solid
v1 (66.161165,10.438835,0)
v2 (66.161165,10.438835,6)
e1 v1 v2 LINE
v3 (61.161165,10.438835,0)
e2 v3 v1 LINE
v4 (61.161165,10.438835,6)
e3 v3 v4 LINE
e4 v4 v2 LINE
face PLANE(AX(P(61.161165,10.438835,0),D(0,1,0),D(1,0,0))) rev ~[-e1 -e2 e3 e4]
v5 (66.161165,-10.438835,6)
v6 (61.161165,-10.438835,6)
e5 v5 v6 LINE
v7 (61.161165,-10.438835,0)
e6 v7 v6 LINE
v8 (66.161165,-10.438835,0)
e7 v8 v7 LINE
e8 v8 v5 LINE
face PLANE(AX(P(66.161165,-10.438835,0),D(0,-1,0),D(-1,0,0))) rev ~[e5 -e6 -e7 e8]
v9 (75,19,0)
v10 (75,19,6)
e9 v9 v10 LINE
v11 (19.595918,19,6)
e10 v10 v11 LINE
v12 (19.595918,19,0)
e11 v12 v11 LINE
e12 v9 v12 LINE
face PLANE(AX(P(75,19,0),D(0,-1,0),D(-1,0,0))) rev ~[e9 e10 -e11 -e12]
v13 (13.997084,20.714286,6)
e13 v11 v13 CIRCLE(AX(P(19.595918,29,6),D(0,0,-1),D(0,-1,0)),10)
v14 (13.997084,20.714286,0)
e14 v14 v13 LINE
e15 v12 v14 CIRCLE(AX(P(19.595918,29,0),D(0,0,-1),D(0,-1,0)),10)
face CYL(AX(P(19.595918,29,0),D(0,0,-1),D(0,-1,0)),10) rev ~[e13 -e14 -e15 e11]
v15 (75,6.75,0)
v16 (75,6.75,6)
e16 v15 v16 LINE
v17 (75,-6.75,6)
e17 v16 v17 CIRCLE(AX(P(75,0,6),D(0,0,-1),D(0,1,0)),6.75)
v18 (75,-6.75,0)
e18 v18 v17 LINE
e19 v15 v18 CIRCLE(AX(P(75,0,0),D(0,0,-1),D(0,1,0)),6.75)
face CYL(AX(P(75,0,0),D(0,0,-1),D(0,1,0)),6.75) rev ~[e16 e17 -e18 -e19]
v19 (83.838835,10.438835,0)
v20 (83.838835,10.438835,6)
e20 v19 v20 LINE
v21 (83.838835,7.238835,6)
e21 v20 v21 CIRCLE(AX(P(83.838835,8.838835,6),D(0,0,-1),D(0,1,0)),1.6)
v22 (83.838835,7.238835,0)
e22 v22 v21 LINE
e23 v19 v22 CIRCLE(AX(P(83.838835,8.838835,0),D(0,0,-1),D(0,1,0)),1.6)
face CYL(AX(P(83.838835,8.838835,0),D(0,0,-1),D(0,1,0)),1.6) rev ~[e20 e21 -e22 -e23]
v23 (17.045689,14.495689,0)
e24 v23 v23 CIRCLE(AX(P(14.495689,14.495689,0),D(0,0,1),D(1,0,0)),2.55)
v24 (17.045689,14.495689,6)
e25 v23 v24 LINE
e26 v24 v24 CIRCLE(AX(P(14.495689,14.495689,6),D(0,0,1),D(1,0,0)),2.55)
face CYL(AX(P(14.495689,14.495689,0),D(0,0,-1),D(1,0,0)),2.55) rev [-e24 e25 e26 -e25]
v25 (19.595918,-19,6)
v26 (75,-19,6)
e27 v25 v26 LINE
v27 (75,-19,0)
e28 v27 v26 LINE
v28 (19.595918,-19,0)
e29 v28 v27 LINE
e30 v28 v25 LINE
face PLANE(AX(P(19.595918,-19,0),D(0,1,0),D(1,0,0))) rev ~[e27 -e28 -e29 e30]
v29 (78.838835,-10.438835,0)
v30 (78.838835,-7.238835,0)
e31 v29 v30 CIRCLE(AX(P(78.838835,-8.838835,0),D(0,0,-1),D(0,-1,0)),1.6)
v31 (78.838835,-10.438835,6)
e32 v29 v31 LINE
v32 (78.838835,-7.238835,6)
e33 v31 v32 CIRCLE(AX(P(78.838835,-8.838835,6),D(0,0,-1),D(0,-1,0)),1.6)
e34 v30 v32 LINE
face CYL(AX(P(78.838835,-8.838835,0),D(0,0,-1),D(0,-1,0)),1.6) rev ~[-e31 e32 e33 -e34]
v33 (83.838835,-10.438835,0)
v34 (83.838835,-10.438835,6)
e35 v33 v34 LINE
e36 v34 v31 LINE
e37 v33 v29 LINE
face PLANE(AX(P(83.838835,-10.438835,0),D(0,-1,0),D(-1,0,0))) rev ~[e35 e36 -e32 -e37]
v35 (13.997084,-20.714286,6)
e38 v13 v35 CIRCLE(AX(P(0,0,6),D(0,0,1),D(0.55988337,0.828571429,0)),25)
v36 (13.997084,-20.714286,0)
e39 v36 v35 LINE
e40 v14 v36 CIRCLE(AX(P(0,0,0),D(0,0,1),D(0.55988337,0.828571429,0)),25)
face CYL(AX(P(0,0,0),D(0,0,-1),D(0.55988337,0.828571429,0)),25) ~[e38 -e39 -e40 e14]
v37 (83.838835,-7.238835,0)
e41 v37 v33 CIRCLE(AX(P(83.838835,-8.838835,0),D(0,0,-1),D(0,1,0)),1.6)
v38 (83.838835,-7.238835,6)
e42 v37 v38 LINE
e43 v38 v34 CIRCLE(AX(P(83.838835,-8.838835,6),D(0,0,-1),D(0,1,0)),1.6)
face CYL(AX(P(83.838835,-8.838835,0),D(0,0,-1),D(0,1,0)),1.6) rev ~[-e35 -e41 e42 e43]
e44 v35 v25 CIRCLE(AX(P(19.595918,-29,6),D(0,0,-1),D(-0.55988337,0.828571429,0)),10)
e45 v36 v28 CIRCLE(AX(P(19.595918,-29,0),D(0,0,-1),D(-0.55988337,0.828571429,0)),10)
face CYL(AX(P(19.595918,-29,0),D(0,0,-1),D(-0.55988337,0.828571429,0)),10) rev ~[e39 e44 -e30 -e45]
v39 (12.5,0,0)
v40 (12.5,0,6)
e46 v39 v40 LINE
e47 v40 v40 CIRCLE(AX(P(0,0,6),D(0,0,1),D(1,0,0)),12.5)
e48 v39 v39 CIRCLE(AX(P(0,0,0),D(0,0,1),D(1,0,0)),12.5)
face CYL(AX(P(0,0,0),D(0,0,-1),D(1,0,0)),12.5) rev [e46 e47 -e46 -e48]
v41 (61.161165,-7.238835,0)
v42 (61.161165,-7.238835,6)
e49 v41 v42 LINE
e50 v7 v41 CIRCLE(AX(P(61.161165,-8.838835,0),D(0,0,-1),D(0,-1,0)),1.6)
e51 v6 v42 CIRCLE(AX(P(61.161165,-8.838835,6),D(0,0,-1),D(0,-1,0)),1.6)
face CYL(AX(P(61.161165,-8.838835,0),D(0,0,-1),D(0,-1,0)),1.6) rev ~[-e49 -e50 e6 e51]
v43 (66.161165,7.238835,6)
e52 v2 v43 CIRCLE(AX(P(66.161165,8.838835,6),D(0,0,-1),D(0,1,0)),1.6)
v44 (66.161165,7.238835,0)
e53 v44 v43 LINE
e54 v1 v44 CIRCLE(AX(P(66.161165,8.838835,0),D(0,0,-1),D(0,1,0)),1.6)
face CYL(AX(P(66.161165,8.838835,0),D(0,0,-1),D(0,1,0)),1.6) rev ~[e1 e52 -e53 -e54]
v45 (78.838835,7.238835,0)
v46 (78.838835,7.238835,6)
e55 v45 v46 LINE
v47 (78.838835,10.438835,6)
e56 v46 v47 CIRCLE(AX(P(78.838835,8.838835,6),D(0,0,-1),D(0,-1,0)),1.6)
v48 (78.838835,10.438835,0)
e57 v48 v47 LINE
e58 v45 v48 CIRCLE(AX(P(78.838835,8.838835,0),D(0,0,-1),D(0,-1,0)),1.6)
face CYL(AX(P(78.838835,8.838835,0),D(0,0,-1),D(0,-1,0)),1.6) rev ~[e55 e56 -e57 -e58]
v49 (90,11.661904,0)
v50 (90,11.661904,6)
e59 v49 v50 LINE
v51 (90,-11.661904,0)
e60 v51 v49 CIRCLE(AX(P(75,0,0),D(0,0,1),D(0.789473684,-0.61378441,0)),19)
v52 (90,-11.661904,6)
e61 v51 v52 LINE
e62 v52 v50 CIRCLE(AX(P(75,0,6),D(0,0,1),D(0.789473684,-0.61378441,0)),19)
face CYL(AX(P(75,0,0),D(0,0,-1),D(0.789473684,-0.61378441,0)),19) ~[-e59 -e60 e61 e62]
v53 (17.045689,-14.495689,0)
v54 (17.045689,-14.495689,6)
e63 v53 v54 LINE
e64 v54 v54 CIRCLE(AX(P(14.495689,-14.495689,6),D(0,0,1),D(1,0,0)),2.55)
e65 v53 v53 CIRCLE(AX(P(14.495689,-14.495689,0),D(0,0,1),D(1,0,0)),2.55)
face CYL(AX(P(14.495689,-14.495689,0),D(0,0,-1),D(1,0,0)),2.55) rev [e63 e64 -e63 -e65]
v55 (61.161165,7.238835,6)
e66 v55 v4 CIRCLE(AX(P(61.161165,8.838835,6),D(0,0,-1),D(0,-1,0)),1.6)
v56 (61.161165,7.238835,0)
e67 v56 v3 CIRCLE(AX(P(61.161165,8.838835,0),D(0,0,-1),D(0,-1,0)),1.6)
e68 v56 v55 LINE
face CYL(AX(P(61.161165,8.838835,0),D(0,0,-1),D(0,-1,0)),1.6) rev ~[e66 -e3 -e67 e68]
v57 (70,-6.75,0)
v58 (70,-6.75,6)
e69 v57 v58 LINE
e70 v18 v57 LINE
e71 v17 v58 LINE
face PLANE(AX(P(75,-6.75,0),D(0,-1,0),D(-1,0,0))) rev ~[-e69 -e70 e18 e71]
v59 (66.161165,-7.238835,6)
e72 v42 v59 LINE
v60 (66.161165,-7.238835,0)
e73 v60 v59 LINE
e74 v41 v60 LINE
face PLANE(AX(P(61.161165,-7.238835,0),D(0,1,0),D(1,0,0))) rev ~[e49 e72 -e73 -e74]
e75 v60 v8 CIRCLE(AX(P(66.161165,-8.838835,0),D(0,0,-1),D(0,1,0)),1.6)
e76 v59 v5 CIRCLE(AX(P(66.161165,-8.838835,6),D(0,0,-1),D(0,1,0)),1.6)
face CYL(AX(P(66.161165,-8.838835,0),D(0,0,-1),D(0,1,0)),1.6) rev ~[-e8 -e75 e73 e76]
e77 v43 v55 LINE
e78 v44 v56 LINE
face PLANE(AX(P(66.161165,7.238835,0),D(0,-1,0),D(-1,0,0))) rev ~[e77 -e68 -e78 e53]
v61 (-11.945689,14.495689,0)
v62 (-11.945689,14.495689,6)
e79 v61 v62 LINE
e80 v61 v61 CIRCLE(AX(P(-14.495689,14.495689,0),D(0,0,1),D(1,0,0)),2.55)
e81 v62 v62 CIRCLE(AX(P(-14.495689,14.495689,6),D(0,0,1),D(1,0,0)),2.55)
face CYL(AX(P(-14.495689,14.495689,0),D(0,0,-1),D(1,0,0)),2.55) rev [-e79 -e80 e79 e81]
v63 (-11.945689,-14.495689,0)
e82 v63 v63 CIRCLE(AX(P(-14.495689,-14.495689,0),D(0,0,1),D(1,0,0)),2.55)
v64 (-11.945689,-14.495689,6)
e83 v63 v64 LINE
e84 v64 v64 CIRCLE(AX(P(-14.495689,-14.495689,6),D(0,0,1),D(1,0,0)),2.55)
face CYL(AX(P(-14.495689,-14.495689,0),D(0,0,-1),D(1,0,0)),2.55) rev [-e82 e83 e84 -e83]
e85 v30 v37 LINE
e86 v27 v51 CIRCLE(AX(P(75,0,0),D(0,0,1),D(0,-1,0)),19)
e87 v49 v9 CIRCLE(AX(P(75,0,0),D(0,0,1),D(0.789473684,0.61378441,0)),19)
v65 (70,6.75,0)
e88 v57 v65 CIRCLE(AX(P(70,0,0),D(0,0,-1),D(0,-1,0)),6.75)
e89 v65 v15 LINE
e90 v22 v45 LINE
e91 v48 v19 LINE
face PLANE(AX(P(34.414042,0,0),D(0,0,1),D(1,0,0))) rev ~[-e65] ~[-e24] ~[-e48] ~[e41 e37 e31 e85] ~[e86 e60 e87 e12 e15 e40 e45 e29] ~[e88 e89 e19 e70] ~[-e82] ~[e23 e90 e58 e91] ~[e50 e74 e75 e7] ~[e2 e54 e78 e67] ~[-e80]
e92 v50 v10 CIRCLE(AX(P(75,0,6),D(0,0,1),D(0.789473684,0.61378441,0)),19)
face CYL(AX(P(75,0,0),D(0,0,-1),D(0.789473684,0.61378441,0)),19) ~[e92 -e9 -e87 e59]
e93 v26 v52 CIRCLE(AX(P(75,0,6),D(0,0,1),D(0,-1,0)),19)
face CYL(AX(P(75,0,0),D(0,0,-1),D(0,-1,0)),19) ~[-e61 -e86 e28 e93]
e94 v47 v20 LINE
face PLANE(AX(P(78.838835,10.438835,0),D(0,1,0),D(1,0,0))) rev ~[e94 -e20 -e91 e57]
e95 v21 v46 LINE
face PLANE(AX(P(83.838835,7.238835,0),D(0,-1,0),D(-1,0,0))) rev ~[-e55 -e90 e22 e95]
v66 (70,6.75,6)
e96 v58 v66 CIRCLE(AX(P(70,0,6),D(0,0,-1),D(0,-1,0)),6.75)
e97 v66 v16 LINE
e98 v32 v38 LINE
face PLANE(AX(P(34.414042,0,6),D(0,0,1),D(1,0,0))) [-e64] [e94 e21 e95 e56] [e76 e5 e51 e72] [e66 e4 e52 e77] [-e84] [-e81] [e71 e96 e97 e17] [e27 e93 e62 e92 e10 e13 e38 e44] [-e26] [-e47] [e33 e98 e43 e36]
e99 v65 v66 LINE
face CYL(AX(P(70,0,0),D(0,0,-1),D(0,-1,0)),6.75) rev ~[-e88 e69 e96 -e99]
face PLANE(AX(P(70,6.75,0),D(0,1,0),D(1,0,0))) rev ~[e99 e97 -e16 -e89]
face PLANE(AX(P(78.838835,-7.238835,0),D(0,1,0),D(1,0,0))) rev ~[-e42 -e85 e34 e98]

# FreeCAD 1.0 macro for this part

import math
import FreeCAD as App
import Part
import Sketcher

V = App.Vector

doc = App.newDocument("Part")
body = doc.addObject("PartDesign::Body", "Body")

sketch1 = body.newObject("Sketcher::SketchObject", "Sketch")
sketch1.AttachmentSupport = (doc.getObject("XY_Plane"), [""])
sketch1.MapMode = "FlatFace"
sketch1.addGeometry(Part.ArcOfCircle(Part.Circle(V(19.595918, 29, 0), V(0, 0, 1), 10), math.radians(-124.047732), math.radians(-90)), False)
sketch1.addGeometry(Part.ArcOfCircle(Part.Circle(V(0, 0, 0), V(0, 0, 1), 25), math.radians(55.952268), math.radians(304.047732)), False)
sketch1.addGeometry(Part.ArcOfCircle(Part.Circle(V(19.595918, -29, 0), V(0, 0, 1), 10), math.radians(90), math.radians(124.047732)), False)
sketch1.addGeometry(Part.LineSegment(V(19.595918, -19, 0), V(75, -19, 0)), False)
sketch1.addGeometry(Part.ArcOfCircle(Part.Circle(V(75, 0, 0), V(0, 0, 1), 19), math.radians(-90), math.radians(-37.863646)), False)
sketch1.addGeometry(Part.ArcOfCircle(Part.Circle(V(75, 0, 0), V(0, 0, 1), 19), math.radians(-37.863646), math.radians(37.863646)), False)
sketch1.addGeometry(Part.ArcOfCircle(Part.Circle(V(75, 0, 0), V(0, 0, 1), 19), math.radians(37.863646), math.radians(90)), False)
sketch1.addGeometry(Part.LineSegment(V(75, 19, 0), V(19.595918, 19, 0)), False)
sketch1.addGeometry(Part.Circle(V(-14.495689, -14.495689, 0), V(0, 0, 1), 2.55), False)
sketch1.addGeometry(Part.Circle(V(14.495689, -14.495689, 0), V(0, 0, 1), 2.55), False)
sketch1.addGeometry(Part.LineSegment(V(66.161165, -10.438835, 0), V(61.161165, -10.438835, 0)), False)
sketch1.addGeometry(Part.ArcOfCircle(Part.Circle(V(61.161165, -8.838835, 0), V(0, 0, 1), 1.6), math.radians(90), math.radians(270)), False)
sketch1.addGeometry(Part.LineSegment(V(61.161165, -7.238835, 0), V(66.161165, -7.238835, 0)), False)
sketch1.addGeometry(Part.ArcOfCircle(Part.Circle(V(66.161165, -8.838835, 0), V(0, 0, 1), 1.6), math.radians(-90), math.radians(90)), False)
sketch1.addGeometry(Part.LineSegment(V(83.838835, -10.438835, 0), V(78.838835, -10.438835, 0)), False)
sketch1.addGeometry(Part.ArcOfCircle(Part.Circle(V(78.838835, -8.838835, 0), V(0, 0, 1), 1.6), math.radians(90), math.radians(270)), False)
sketch1.addGeometry(Part.LineSegment(V(78.838835, -7.238835, 0), V(83.838835, -7.238835, 0)), False)
sketch1.addGeometry(Part.ArcOfCircle(Part.Circle(V(83.838835, -8.838835, 0), V(0, 0, 1), 1.6), math.radians(-90), math.radians(90)), False)
sketch1.addGeometry(Part.Circle(V(0, 0, 0), V(0, 0, 1), 12.5), False)
sketch1.addGeometry(Part.Circle(V(-14.495689, 14.495689, 0), V(0, 0, 1), 2.55), False)
sketch1.addGeometry(Part.Circle(V(14.495689, 14.495689, 0), V(0, 0, 1), 2.55), False)
sketch1.addGeometry(Part.LineSegment(V(75, -6.75, 0), V(70, -6.75, 0)), False)
sketch1.addGeometry(Part.ArcOfCircle(Part.Circle(V(70, 0, 0), V(0, 0, 1), 6.75), math.radians(90), math.radians(270)), False)
sketch1.addGeometry(Part.LineSegment(V(70, 6.75, 0), V(75, 6.75, 0)), False)
sketch1.addGeometry(Part.ArcOfCircle(Part.Circle(V(75, 0, 0), V(0, 0, 1), 6.75), math.radians(-90), math.radians(90)), False)
sketch1.addGeometry(Part.LineSegment(V(66.161165, 7.238835, 0), V(61.161165, 7.238835, 0)), False)
sketch1.addGeometry(Part.ArcOfCircle(Part.Circle(V(61.161165, 8.838835, 0), V(0, 0, 1), 1.6), math.radians(90), math.radians(270)), False)
sketch1.addGeometry(Part.LineSegment(V(61.161165, 10.438835, 0), V(66.161165, 10.438835, 0)), False)
sketch1.addGeometry(Part.ArcOfCircle(Part.Circle(V(66.161165, 8.838835, 0), V(0, 0, 1), 1.6), math.radians(-90), math.radians(90)), False)
sketch1.addGeometry(Part.LineSegment(V(83.838835, 7.238835, 0), V(78.838835, 7.238835, 0)), False)
sketch1.addGeometry(Part.ArcOfCircle(Part.Circle(V(78.838835, 8.838835, 0), V(0, 0, 1), 1.6), math.radians(90), math.radians(270)), False)
sketch1.addGeometry(Part.LineSegment(V(78.838835, 10.438835, 0), V(83.838835, 10.438835, 0)), False)
sketch1.addGeometry(Part.ArcOfCircle(Part.Circle(V(83.838835, 8.838835, 0), V(0, 0, 1), 1.6), math.radians(-90), math.radians(90)), False)
sketch1.addConstraint(Sketcher.Constraint("Tangent", 0, 1, 1, 1))
sketch1.addConstraint(Sketcher.Constraint("Tangent", 1, 2, 2, 2))
sketch1.addConstraint(Sketcher.Constraint("Tangent", 2, 1, 3, 1))
sketch1.addConstraint(Sketcher.Constraint("Tangent", 3, 2, 4, 1))
sketch1.addConstraint(Sketcher.Constraint("Tangent", 4, 2, 5, 1))
sketch1.addConstraint(Sketcher.Constraint("Tangent", 5, 2, 6, 1))
sketch1.addConstraint(Sketcher.Constraint("Tangent", 6, 2, 7, 1))
sketch1.addConstraint(Sketcher.Constraint("Tangent", 7, 2, 0, 2))
sketch1.addConstraint(Sketcher.Constraint("Tangent", 10, 2, 11, 2))
sketch1.addConstraint(Sketcher.Constraint("Tangent", 11, 1, 12, 1))
sketch1.addConstraint(Sketcher.Constraint("Tangent", 12, 2, 13, 2))
sketch1.addConstraint(Sketcher.Constraint("Tangent", 13, 1, 10, 1))
sketch1.addConstraint(Sketcher.Constraint("Tangent", 14, 2, 15, 2))
sketch1.addConstraint(Sketcher.Constraint("Tangent", 15, 1, 16, 1))
sketch1.addConstraint(Sketcher.Constraint("Tangent", 16, 2, 17, 2))
sketch1.addConstraint(Sketcher.Constraint("Tangent", 17, 1, 14, 1))
sketch1.addConstraint(Sketcher.Constraint("Tangent", 21, 2, 22, 2))
sketch1.addConstraint(Sketcher.Constraint("Tangent", 22, 1, 23, 1))
sketch1.addConstraint(Sketcher.Constraint("Tangent", 23, 2, 24, 2))
sketch1.addConstraint(Sketcher.Constraint("Tangent", 24, 1, 21, 1))
sketch1.addConstraint(Sketcher.Constraint("Tangent", 25, 2, 26, 2))
sketch1.addConstraint(Sketcher.Constraint("Tangent", 26, 1, 27, 1))
sketch1.addConstraint(Sketcher.Constraint("Tangent", 27, 2, 28, 2))
sketch1.addConstraint(Sketcher.Constraint("Tangent", 28, 1, 25, 1))
sketch1.addConstraint(Sketcher.Constraint("Tangent", 29, 2, 30, 2))
sketch1.addConstraint(Sketcher.Constraint("Tangent", 30, 1, 31, 1))
sketch1.addConstraint(Sketcher.Constraint("Tangent", 31, 2, 32, 2))
sketch1.addConstraint(Sketcher.Constraint("Tangent", 32, 1, 29, 1))
sketch1.addConstraint(Sketcher.Constraint("Horizontal", 3))
sketch1.addConstraint(Sketcher.Constraint("Horizontal", 7))
sketch1.addConstraint(Sketcher.Constraint("Horizontal", 10))
sketch1.addConstraint(Sketcher.Constraint("Horizontal", 12))
sketch1.addConstraint(Sketcher.Constraint("Horizontal", 14))
sketch1.addConstraint(Sketcher.Constraint("Horizontal", 16))
sketch1.addConstraint(Sketcher.Constraint("Horizontal", 21))
sketch1.addConstraint(Sketcher.Constraint("Horizontal", 23))
sketch1.addConstraint(Sketcher.Constraint("Horizontal", 25))
sketch1.addConstraint(Sketcher.Constraint("Horizontal", 27))
sketch1.addConstraint(Sketcher.Constraint("Horizontal", 29))
sketch1.addConstraint(Sketcher.Constraint("Horizontal", 31))
sketch1.addConstraint(Sketcher.Constraint("Coincident", 1, 3, -1, 1))
sketch1.addConstraint(Sketcher.Constraint("Coincident", 18, 3, -1, 1))
sketch1.addConstraint(Sketcher.Constraint("Coincident", 6, 3, 4, 3))
sketch1.addConstraint(Sketcher.Constraint("Coincident", 24, 3, 4, 3))
sketch1.addConstraint(Sketcher.Constraint("Equal", 0, 2))
sketch1.addConstraint(Sketcher.Constraint("Equal", 8, 9))
sketch1.addConstraint(Sketcher.Constraint("Equal", 13, 15))
sketch1.addConstraint(Sketcher.Constraint("Equal", 9, 19))
sketch1.addConstraint(Sketcher.Constraint("Equal", 19, 20))
sketch1.addConstraint(Sketcher.Constraint("Equal", 17, 26))
sketch1.addConstraint(Sketcher.Constraint("Equal", 28, 30))
sketch1.addConstraint(Sketcher.Constraint("Symmetric", 9, 3, 19, 3, -1, 1))
sketch1.addConstraint(Sketcher.Constraint("Symmetric", 8, 3, 20, 3, -1, 1))
sketch1.addConstraint(Sketcher.Constraint("Symmetric", 8, 3, 9, 3, -2))
sketch1.addConstraint(Sketcher.Constraint("Symmetric", 11, 3, 26, 3, -1))
sketch1.addConstraint(Sketcher.Constraint("Symmetric", 15, 3, 30, 3, -1))
sketch1.addConstraint(Sketcher.Constraint("Symmetric", 4, 2, 5, 2, -1))
sketch1.addConstraint(Sketcher.Constraint("Horizontal", 13, 3, 15, 3))
sketch1.addConstraint(Sketcher.Constraint("Vertical", 13, 3, 28, 3))
sketch1.addConstraint(Sketcher.Constraint("Vertical", 17, 3, 32, 3))
sketch1.addConstraint(Sketcher.Constraint("Equal", 12, 14))
sketch1.addConstraint(Sketcher.Constraint("Equal", 16, 21))
sketch1.addConstraint(Sketcher.Constraint("Diameter", 18, 25.0))
sketch1.addConstraint(Sketcher.Constraint("Radius", 0, 10.0))
sketch1.addConstraint(Sketcher.Constraint("Radius", 1, 25.0))
sketch1.addConstraint(Sketcher.Constraint("Radius", 4, 19.0))
sketch1.addConstraint(Sketcher.Constraint("Diameter", 8, 5.1))
sketch1.addConstraint(Sketcher.Constraint("Radius", 11, 1.6))
sketch1.addConstraint(Sketcher.Constraint("DistanceX", 10, 2, 10, 1, 5.0))
sketch1.addConstraint(Sketcher.Constraint("Radius", 22, 6.75))
sketch1.addConstraint(Sketcher.Constraint("DistanceX", -1, 1, 4, 3, 75.0))
sketch1.addConstraint(Sketcher.Constraint("DistanceX", -1, 1, 4, 2, 90.0))
sketch1.addConstraint(Sketcher.Constraint("DistanceX", 8, 3, -1, 1, 14.495689))
sketch1.addConstraint(Sketcher.Constraint("DistanceY", 8, 3, -1, 1, 14.495689))
sketch1.addConstraint(Sketcher.Constraint("DistanceX", 13, 3, 15, 3, 12.67767))
sketch1.addConstraint(Sketcher.Constraint("DistanceY", 4, 2, 17, 3, 2.823069))
sketch1.addConstraint(Sketcher.Constraint("DistanceX", -1, 1, 11, 3, 61.161165))
pad1 = body.newObject("PartDesign::Pad", "Pad")
pad1.Profile = sketch1
pad1.Length = 6

doc.recompute()
